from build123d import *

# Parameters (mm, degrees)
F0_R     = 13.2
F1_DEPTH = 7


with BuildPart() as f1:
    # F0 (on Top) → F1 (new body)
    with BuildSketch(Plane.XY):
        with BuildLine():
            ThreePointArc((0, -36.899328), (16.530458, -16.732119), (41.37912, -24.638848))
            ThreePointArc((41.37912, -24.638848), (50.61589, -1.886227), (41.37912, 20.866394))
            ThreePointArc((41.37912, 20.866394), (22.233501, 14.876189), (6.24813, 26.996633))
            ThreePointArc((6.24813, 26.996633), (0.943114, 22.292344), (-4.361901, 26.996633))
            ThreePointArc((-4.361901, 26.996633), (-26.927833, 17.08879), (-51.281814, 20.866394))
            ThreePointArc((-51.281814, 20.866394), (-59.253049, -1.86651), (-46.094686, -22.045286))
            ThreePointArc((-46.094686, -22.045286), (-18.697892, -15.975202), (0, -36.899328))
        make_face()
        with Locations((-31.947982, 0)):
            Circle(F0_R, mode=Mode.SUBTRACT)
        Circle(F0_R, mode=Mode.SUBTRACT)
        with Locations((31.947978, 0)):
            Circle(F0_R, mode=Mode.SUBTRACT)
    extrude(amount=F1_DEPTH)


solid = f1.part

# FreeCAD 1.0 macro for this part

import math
import FreeCAD as App
import Part
import Sketcher

doc = App.newDocument("Part")
body = doc.addObject("PartDesign::Body", "Body")

# Sketch on XY plane
sketch1 = body.newObject("Sketcher::SketchObject", "Sketch")
sketch1.AttachmentSupport = (doc.getObject("XY_Plane"), [""])
sketch1.MapMode = "FlatFace"
sketch1.addGeometry(Part.ArcOfCircle(Part.Circle(App.Vector(23, -39, 0), App.Vector(0, 0, 1), 23), math.radians(38), math.radians(175)), False)
sketch1.addGeometry(Part.ArcOfCircle(Part.Circle(App.Vector(18, -2, 0), App.Vector(0, 0, 1), 33), math.radians(-44), math.radians(44)), False)
sketch1.addGeometry(Part.ArcOfCircle(Part.Circle(App.Vector(26, 36, 0), App.Vector(0, 0, 1), 22), math.radians(-154), math.radians(-45)), False)
sketch1.addGeometry(Part.ArcOfCircle(Part.Circle(App.Vector(1, 28, 0), App.Vector(0, 0, 1), 5), math.radians(-173), math.radians(-7)), False)
sketch1.addGeometry(Part.ArcOfCircle(Part.Circle(App.Vector(-33, 61, 0), App.Vector(0, 0, 1), 44), math.radians(-115), math.radians(-50)), False)
sketch1.addGeometry(Part.ArcOfCircle(Part.Circle(App.Vector(-32, 1, 0), App.Vector(0, 0, 1), 27), math.radians(134), math.radians(239)), False)
sketch1.addGeometry(Part.ArcOfCircle(Part.Circle(App.Vector(-27, -42, 0), App.Vector(0, 0, 1), 28), math.radians(11), math.radians(133)), False)
sketch1.addGeometry(Part.Circle(App.Vector(-32, 0, 0), App.Vector(0, 0, 1), 13), False)
sketch1.addGeometry(Part.Circle(App.Vector(0, 0, 0), App.Vector(0, 0, 1), 13), False)
sketch1.addGeometry(Part.Circle(App.Vector(32, 0, 0), App.Vector(0, 0, 1), 13), False)
sketch1.addConstraint(Sketcher.Constraint("Coincident", 0, 1, 1, 1))
sketch1.addConstraint(Sketcher.Constraint("Coincident", 1, 2, 2, 2))
sketch1.addConstraint(Sketcher.Constraint("Coincident", 2, 1, 3, 2))
sketch1.addConstraint(Sketcher.Constraint("Coincident", 3, 1, 4, 2))
sketch1.addConstraint(Sketcher.Constraint("Coincident", 4, 1, 5, 1))
sketch1.addConstraint(Sketcher.Constraint("Coincident", 5, 2, 6, 2))
sketch1.addConstraint(Sketcher.Constraint("Coincident", 6, 1, 0, 2))
sketch1.addConstraint(Sketcher.Constraint("Coincident", 8, 3, -1, 1))
sketch1.addConstraint(Sketcher.Constraint("Equal", 7, 8))
sketch1.addConstraint(Sketcher.Constraint("Equal", 8, 9))
sketch1.addConstraint(Sketcher.Constraint("Symmetric", 7, 3, 9, 3, -1, 1))
sketch1.addConstraint(Sketcher.Constraint("PointOnObject", 7, 3, -1))
sketch1.addConstraint(Sketcher.Constraint("PointOnObject", 6, 1, -2))
sketch1.addConstraint(Sketcher.Constraint("Horizontal", 2, 1, 3, 1))
sketch1.addConstraint(Sketcher.Constraint("Horizontal", 1, 2, 4, 1))
sketch1.addConstraint(Sketcher.Constraint("Vertical", 0, 1, 1, 2))
sketch1.addConstraint(Sketcher.Constraint("Diameter", 7, 26.4))
sketch1.addConstraint(Sketcher.Constraint("Radius", 2, 21.890259))
sketch1.addConstraint(Sketcher.Constraint("Radius", 3, 5.343371))
sketch1.addConstraint(Sketcher.Constraint("Radius", 5, 27.266568))
sketch1.addConstraint(Sketcher.Constraint("Radius", 0, 23.222827))
sketch1.addConstraint(Sketcher.Constraint("Radius", 1, 32.641263))
sketch1.addConstraint(Sketcher.Constraint("Radius", 4, 44.007914))
sketch1.addConstraint(Sketcher.Constraint("Radius", 6, 27.764338))
sketch1.addConstraint(Sketcher.Constraint("DistanceY", -1, 1, 2, 3, 36.440602))
sketch1.addConstraint(Sketcher.Constraint("DistanceX", 3, 1, -1, 1, 4.361901))
sketch1.addConstraint(Sketcher.Constraint("DistanceY", 5, 3, 4, 3, 59.320201))
sketch1.addConstraint(Sketcher.Constraint("DistanceX", 2, 3, 0, 1, 15.382701))
sketch1.addConstraint(Sketcher.Constraint("DistanceY", 6, 1, 1, 3, 35.013101))
sketch1.addConstraint(Sketcher.Constraint("DistanceX", -1, 1, 2, 3, 25.996419))
sketch1.addConstraint(Sketcher.Constraint("DistanceY", -1, 1, 4, 3, 60.725832))
sketch1.addConstraint(Sketcher.Constraint("DistanceX", 5, 3, -1, 1, 32.18353))
sketch1.addConstraint(Sketcher.Constraint("DistanceX", 6, 3, -1, 1, 27.213722))
sketch1.addConstraint(Sketcher.Constraint("DistanceY", 6, 3, -1, 1, 42.401308))
sketch1.addConstraint(Sketcher.Constraint("DistanceX", 7, 3, -1, 1, 31.947982))
pad1 = body.newObject("PartDesign::Pad", "Pad")
pad1.Profile = sketch1
pad1.Length = 7

doc.recompute()
